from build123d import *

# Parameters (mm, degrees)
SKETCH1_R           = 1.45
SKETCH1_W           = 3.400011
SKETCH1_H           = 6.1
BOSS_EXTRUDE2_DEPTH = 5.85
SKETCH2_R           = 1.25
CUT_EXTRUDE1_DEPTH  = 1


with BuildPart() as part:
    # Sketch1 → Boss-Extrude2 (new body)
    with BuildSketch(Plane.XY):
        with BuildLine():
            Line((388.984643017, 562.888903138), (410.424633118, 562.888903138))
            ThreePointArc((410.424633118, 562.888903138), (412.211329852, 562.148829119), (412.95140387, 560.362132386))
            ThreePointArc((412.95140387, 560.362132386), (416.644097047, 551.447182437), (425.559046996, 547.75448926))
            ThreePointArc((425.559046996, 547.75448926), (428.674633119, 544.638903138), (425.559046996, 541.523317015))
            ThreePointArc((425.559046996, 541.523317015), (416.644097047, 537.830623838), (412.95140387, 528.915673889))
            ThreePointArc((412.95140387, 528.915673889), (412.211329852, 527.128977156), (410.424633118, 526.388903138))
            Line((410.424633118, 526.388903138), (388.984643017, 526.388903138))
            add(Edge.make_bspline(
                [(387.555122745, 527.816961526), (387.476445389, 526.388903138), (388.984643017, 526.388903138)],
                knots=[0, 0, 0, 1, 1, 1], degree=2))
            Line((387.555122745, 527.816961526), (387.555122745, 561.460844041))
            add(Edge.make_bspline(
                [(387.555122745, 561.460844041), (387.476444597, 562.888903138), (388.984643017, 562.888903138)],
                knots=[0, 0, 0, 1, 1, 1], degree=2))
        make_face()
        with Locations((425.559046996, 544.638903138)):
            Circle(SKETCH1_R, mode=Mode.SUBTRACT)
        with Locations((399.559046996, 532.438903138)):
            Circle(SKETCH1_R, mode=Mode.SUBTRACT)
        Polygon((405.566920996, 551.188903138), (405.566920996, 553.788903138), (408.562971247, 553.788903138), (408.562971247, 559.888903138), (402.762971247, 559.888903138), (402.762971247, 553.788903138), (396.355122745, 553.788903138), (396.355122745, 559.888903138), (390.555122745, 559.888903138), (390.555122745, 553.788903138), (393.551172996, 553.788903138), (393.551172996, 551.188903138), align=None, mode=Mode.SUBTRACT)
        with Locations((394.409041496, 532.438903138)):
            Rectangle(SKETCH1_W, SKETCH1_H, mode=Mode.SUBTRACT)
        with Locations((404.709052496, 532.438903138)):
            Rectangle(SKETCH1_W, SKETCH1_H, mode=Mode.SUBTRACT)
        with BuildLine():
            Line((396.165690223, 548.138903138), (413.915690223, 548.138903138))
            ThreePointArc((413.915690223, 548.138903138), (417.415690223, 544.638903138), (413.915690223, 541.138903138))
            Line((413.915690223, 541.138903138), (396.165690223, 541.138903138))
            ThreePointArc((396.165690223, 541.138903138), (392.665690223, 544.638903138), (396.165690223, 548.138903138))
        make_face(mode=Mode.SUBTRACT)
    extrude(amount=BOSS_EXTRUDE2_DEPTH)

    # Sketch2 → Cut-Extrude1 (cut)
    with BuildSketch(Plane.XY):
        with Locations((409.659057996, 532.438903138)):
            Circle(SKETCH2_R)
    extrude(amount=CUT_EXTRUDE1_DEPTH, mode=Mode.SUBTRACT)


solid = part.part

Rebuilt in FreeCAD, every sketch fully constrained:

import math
import FreeCAD as App
import Part
import Sketcher

V = App.Vector
Q = App.Units.Quantity


def add_polygon(sketch, points):
    """Adds a closed chain of lines whose ends are joined by coincident constraints."""
    first, n = sketch.GeometryCount, len(points)
    for a, b in zip(points, points[1:] + points[:1]):
        sketch.addGeometry(Part.LineSegment(App.Vector(*a, 0), App.Vector(*b, 0)), False)
    for i in range(n):
        sketch.addConstraint(Sketcher.Constraint("Coincident", first + i, 2, first + (i + 1) % n, 1))

doc = App.newDocument("Part")
params = doc.addObject("Spreadsheet::Sheet", "Params")
for row, (alias, value) in enumerate([
    ("sketch1_diameter", "2.9 mm"),
    ("sketch1_radius", "3.5 mm"),
    ("sketch1_width", "5.8 mm"),
    ("sketch1_height", "6.1 mm"),
    ("sketch1_height2", "2.6 mm"),
    ("pad1_length", "5.85 mm"),
    ("sketch2_diameter", "2.5 mm"),
    ("pocket1_length", "1 mm"),
], start=1):
    params.set(f"A{row}", alias)
    params.set(f"B{row}", "=" + value)
    params.setAlias(f"B{row}", alias)

body = doc.addObject("PartDesign::Body", "Body")

sketch1 = body.newObject("Sketcher::SketchObject", "Sketch")
sketch1.AttachmentSupport = (doc.getObject("XY_Plane"), [""])
sketch1.MapMode = "FlatFace"
sketch1.addGeometry(Part.LineSegment(V(410.424633, 562.888903, 0), V(388.984643, 562.888903, 0)), False)
sketch1.addGeometry(Part.BSplineCurve([V(387.555123, 561.460844, 0), V(387.476445, 562.888903, 0), V(388.984643, 562.888903, 0)], [3, 3], [0, 1], False, 2, [1, 1, 1], False), False)
sketch1.addGeometry(Part.LineSegment(V(387.555123, 561.460844, 0), V(387.555123, 527.816962, 0)), False)
sketch1.addGeometry(Part.BSplineCurve([V(387.555123, 527.816962, 0), V(387.476445, 526.388903, 0), V(388.984643, 526.388903, 0)], [3, 3], [0, 1], False, 2, [1, 1, 1], False), False)
sketch1.addGeometry(Part.LineSegment(V(388.984643, 526.388903, 0), V(410.424633, 526.388903, 0)), False)
sketch1.addGeometry(Part.ArcOfCircle(Part.Circle(V(410.424633, 528.915674, 0), V(0, 0, 1), 2.526771), math.radians(-90), math.radians(0)), False)
sketch1.addGeometry(Part.ArcOfCircle(Part.Circle(V(425.559047, 528.915674, 0), V(0, 0, 1), 12.607643), math.radians(90), math.radians(180)), False)
sketch1.addGeometry(Part.ArcOfCircle(Part.Circle(V(425.559047, 544.638903, 0), V(0, 0, 1), 3.115586), math.radians(-90), math.radians(90)), False)
sketch1.addGeometry(Part.ArcOfCircle(Part.Circle(V(425.559047, 560.362132, 0), V(0, 0, 1), 12.607643), math.radians(-180), math.radians(-90)), False)
sketch1.addGeometry(Part.ArcOfCircle(Part.Circle(V(410.424633, 560.362132, 0), V(0, 0, 1), 2.526771), math.radians(0), math.radians(90)), False)
add_polygon(sketch1, [(403.009047, 529.388903), (403.009047, 535.488903), (406.409058, 535.488903), (406.409058, 529.388903)])
sketch1.addGeometry(Part.Circle(V(399.559047, 532.438903, 0), V(0, 0, 1), 1.45), False)
add_polygon(sketch1, [(392.709036, 529.388903), (392.709036, 535.488903), (396.109047, 535.488903), (396.109047, 529.388903)])
sketch1.addGeometry(Part.Circle(V(425.559047, 544.638903, 0), V(0, 0, 1), 1.45), False)
sketch1.addGeometry(Part.LineSegment(V(396.16569, 548.138903, 0), V(413.91569, 548.138903, 0)), False)
sketch1.addGeometry(Part.ArcOfCircle(Part.Circle(V(413.91569, 544.638903, 0), V(0, 0, 1), 3.5), math.radians(-90), math.radians(90)), False)
sketch1.addGeometry(Part.LineSegment(V(413.91569, 541.138903, 0), V(396.16569, 541.138903, 0)), False)
sketch1.addGeometry(Part.ArcOfCircle(Part.Circle(V(396.16569, 544.638903, 0), V(0, 0, 1), 3.5), math.radians(90), math.radians(270)), False)
add_polygon(sketch1, [(405.566921, 551.188903), (393.551173, 551.188903), (393.551173, 553.788903), (390.555123, 553.788903), (390.555123, 559.888903), (396.355123, 559.888903), (396.355123, 553.788903), (402.762971, 553.788903), (402.762971, 559.888903), (408.562971, 559.888903), (408.562971, 553.788903), (405.566921, 553.788903)])
sketch1.addConstraint([
    Sketcher.Constraint("Block", 1),
    Sketcher.Constraint("Block", 3),
    Sketcher.Constraint("Coincident", 0, 2, 1, 2),
    Sketcher.Constraint("Coincident", 1, 1, 2, 1),
    Sketcher.Constraint("Coincident", 2, 2, 3, 1),
    Sketcher.Constraint("Coincident", 3, 2, 4, 1),
    Sketcher.Constraint("Tangent", 4, 2, 5, 1),
    Sketcher.Constraint("Tangent", 5, 2, 6, 2),
    Sketcher.Constraint("Tangent", 6, 1, 7, 1),
    Sketcher.Constraint("Tangent", 7, 2, 8, 2),
    Sketcher.Constraint("Tangent", 8, 1, 9, 1),
    Sketcher.Constraint("Tangent", 9, 2, 0, 1),
    Sketcher.Constraint("Tangent", 20, 2, 21, 2),
    Sketcher.Constraint("Tangent", 21, 1, 22, 1),
    Sketcher.Constraint("Tangent", 22, 2, 23, 2),
    Sketcher.Constraint("Tangent", 23, 1, 20, 1),
    Sketcher.Constraint("Horizontal", 0),
    Sketcher.Constraint("Horizontal", 4),
    Sketcher.Constraint("Vertical", 10),
    Sketcher.Constraint("Horizontal", 11),
    Sketcher.Constraint("Vertical", 12),
    Sketcher.Constraint("Horizontal", 13),
    Sketcher.Constraint("Vertical", 15),
    Sketcher.Constraint("Horizontal", 16),
    Sketcher.Constraint("Vertical", 17),
    Sketcher.Constraint("Horizontal", 18),
    Sketcher.Constraint("Horizontal", 20),
    Sketcher.Constraint("Horizontal", 22),
    Sketcher.Constraint("Horizontal", 24),
    Sketcher.Constraint("Vertical", 25),
    Sketcher.Constraint("Horizontal", 26),
    Sketcher.Constraint("Vertical", 27),
    Sketcher.Constraint("Horizontal", 28),
    Sketcher.Constraint("Vertical", 29),
    Sketcher.Constraint("Horizontal", 30),
    Sketcher.Constraint("Vertical", 31),
    Sketcher.Constraint("Horizontal", 32),
    Sketcher.Constraint("Vertical", 33),
    Sketcher.Constraint("Horizontal", 34),
    Sketcher.Constraint("Vertical", 35),
    Sketcher.Constraint("Coincident", 19, 3, 7, 3),
    Sketcher.Constraint("Equal", 6, 8),
    Sketcher.Constraint("Equal", 5, 9),
    Sketcher.Constraint("Equal", 14, 19),
    Sketcher.Constraint("Horizontal", 5, 3, 6, 3),
    Sketcher.Constraint("Horizontal", 8, 3, 9, 3),
    Sketcher.Constraint("Horizontal", 19, 3, 21, 3),
    Sketcher.Constraint("Horizontal", 11, 2, 15, 2),
    Sketcher.Constraint("Horizontal", 13, 2, 17, 2),
    Sketcher.Constraint("Horizontal", 26, 2, 29, 2),
    Sketcher.Constraint("Horizontal", 28, 2, 31, 2),
    Sketcher.Constraint("Horizontal", 30, 2, 33, 2),
    Sketcher.Constraint("Vertical", 6, 3, 7, 3),
    Sketcher.Constraint("Vertical", 7, 3, 8, 3),
    Sketcher.Constraint("Equal", 13, 16),
    Sketcher.Constraint("Equal", 28, 32),
    Sketcher.Constraint("Equal", 26, 34),
    Sketcher.Constraint("Equal", 17, 27),
    Sketcher.Constraint("Diameter", 14, Q("2.9 mm")),
    Sketcher.Constraint("Radius", 21, Q("3.5 mm")),
    Sketcher.Constraint("DistanceX", 28, 1, 28, 2, Q("5.8 mm")),
    Sketcher.Constraint("DistanceY", 10, 1, 10, 2, Q("6.1 mm")),
    Sketcher.Constraint("DistanceY", 25, 1, 25, 2, Q("2.6 mm")),
    Sketcher.Constraint("DistanceX", 14, 3, 6, 3, Q("26 mm")),
    Sketcher.Constraint("DistanceY", 4, 2, 12, 2, Q("3 mm")),
    Sketcher.Constraint("DistanceY", 27, 2, 0, 2, Q("3 mm")),
    Sketcher.Constraint("DistanceX", 20, 1, 20, 2, Q("17.75 mm")),
    Sketcher.Constraint("DistanceY", 14, 3, 7, 3, Q("12.2 mm")),
    Sketcher.Constraint("DistanceX", 16, 2, 10, 2, Q("6.9 mm")),
    Sketcher.Constraint("Radius", 5, Q("2.526771 mm")),
    Sketcher.Constraint("DistanceX", 14, 3, 10, 2, Q("3.45 mm")),
    Sketcher.Constraint("Radius", 6, Q("12.607643 mm")),
    Sketcher.Constraint("DistanceX", 0, 2, 0, 1, Q("21.43999 mm")),
    Sketcher.Constraint("DistanceX", 11, 1, 11, 2, Q("3.400011 mm")),
    Sketcher.Constraint("DistanceX", 24, 2, 24, 1, Q("12.015748 mm")),
    Sketcher.Constraint("DistanceX", 26, 2, 26, 1, Q("2.99605 mm")),
    Sketcher.Constraint("DistanceX", -1, 1, 21, 3, Q("413.91569 mm")),
    Sketcher.Constraint("DistanceX", -1, 1, 30, 2, Q("402.762971 mm")),
])
sketch1.setExpression("Constraints[78]", "Params.sketch1_diameter")
sketch1.setExpression("Constraints[79]", "Params.sketch1_radius")
sketch1.setExpression("Constraints[80]", "Params.sketch1_width")
sketch1.setExpression("Constraints[81]", "Params.sketch1_height")
sketch1.setExpression("Constraints[82]", "Params.sketch1_height2")
pad1 = body.newObject("PartDesign::Pad", "Pad")
pad1.Profile = sketch1
pad1.setExpression("Length", "Params.pad1_length")

sketch2 = body.newObject("Sketcher::SketchObject", "Sketch001")
sketch2.AttachmentSupport = (doc.getObject("XY_Plane"), [""])
sketch2.MapMode = "FlatFace"
sketch2.addGeometry(Part.Circle(V(409.659058, 532.438903, 0), V(0, 0, 1), 1.25), False)
sketch2.addConstraint([
    Sketcher.Constraint("Diameter", 0, Q("2.5 mm")),
    Sketcher.Constraint("DistanceX", -1, 1, 0, 3, Q("409.659058 mm")),
    Sketcher.Constraint("DistanceY", -1, 1, 0, 3, Q("532.438903 mm")),
])
sketch2.setExpression("Constraints[0]", "Params.sketch2_diameter")
pocket1 = body.newObject("PartDesign::Pocket", "Pocket")
pocket1.Profile = sketch2
pocket1.setExpression("Length", "Params.pocket1_length")
pocket1.Reversed = True

doc.recompute()
